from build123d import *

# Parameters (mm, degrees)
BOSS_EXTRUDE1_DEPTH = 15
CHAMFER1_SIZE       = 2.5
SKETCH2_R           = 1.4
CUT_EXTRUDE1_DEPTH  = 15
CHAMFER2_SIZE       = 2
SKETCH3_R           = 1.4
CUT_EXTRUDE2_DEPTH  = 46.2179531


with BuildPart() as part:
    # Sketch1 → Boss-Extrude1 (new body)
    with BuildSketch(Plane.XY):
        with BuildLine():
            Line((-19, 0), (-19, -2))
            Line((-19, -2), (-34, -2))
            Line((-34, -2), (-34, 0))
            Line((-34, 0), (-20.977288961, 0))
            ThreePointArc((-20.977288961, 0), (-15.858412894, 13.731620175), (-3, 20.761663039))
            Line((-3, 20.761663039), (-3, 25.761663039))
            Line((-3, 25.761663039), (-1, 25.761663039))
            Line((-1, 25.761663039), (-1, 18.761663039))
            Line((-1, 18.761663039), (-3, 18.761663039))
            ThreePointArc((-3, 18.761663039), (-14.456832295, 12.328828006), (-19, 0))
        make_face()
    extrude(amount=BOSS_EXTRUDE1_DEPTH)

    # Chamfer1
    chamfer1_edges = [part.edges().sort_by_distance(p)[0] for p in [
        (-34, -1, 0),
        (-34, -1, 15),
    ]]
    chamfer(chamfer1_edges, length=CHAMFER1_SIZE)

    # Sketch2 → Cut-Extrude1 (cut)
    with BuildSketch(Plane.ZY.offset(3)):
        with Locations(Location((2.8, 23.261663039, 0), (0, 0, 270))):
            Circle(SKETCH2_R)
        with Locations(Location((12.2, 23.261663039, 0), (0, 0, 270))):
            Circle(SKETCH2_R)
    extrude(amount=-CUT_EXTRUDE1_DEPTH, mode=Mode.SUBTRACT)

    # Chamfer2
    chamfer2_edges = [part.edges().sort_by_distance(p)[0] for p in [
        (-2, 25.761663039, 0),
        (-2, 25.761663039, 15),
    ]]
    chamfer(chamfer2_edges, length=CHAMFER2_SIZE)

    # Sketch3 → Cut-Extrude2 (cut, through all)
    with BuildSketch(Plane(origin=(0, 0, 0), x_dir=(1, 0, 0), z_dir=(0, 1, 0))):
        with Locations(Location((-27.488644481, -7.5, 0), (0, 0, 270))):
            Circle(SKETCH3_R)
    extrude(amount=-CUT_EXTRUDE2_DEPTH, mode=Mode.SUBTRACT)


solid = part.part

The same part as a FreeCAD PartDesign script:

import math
import FreeCAD as App
import Part
import Sketcher
from FreeCAD import Vector
Q = App.Units.Quantity


def edges_at(feature, points):
    """Names of the edges that pass closest to the given points."""
    edges = feature.Shape.Edges
    near = lambda p: min(range(len(edges)), key=lambda i: edges[i].distToShape(Part.Vertex(*p))[0])
    return sorted({f"Edge{near(p) + 1}" for p in points})

doc = App.newDocument("Part")
params = doc.addObject("Spreadsheet::Sheet", "Params")
for row, (alias, value) in enumerate([
    ("sketch1_radius", "19 mm"),
    ("sketch1_width", "2 mm"),
    ("sketch1_width2", "15 mm"),
    ("sketch1_height", "7 mm"),
    ("sketch1_height2", "5 mm"),
    ("pad1_length", "15 mm"),
    ("chamfer_size", "2.5 mm"),
    ("sketch2_diameter", "2.8 mm"),
    ("pocket1_length", "15 mm"),
    ("chamfer2_size", "2 mm"),
    ("sketch3_diameter", "2.8 mm"),
], start=1):
    params.set(f"A{row}", alias)
    params.set(f"B{row}", "=" + value)
    params.setAlias(f"B{row}", alias)

body = doc.addObject("PartDesign::Body", "Body")

# Sketch on XY plane
sketch1 = body.newObject("Sketcher::SketchObject", "Sketch")
sketch1.AttachmentSupport = (doc.getObject("XY_Plane"), [""])
sketch1.MapMode = "FlatFace"
sketch1.addGeometry(Part.LineSegment(Vector(-19, -2, 0), Vector(-19, 0, 0)), False)
sketch1.addGeometry(Part.ArcOfCircle(Part.Circle(Vector(0, 0, 0), Vector(0, 0, 1), 19), math.radians(99), math.radians(180)), False)
sketch1.addGeometry(Part.LineSegment(Vector(-3, 18.8, 0), Vector(-1, 18.8, 0)), False)
sketch1.addGeometry(Part.LineSegment(Vector(-1, 18.8, 0), Vector(-1, 25.8, 0)), False)
sketch1.addGeometry(Part.LineSegment(Vector(-1, 25.8, 0), Vector(-3, 25.8, 0)), False)
sketch1.addGeometry(Part.LineSegment(Vector(-3, 25.8, 0), Vector(-3, 20.8, 0)), False)
sketch1.addGeometry(Part.ArcOfCircle(Part.Circle(Vector(0, 0, 0), Vector(0, 0, 1), 21), math.radians(98), math.radians(180)), False)
sketch1.addGeometry(Part.LineSegment(Vector(-21, 0, 0), Vector(-34, 0, 0)), False)
sketch1.addGeometry(Part.LineSegment(Vector(-34, 0, 0), Vector(-34, -2, 0)), False)
sketch1.addGeometry(Part.LineSegment(Vector(-34, -2, 0), Vector(-19, -2, 0)), False)
sketch1.addConstraint(Sketcher.Constraint("Tangent", 0, 2, 1, 2))
sketch1.addConstraint(Sketcher.Constraint("Coincident", 1, 1, 2, 1))
sketch1.addConstraint(Sketcher.Constraint("Coincident", 2, 2, 3, 1))
sketch1.addConstraint(Sketcher.Constraint("Coincident", 3, 2, 4, 1))
sketch1.addConstraint(Sketcher.Constraint("Coincident", 4, 2, 5, 1))
sketch1.addConstraint(Sketcher.Constraint("Coincident", 5, 2, 6, 1))
sketch1.addConstraint(Sketcher.Constraint("Coincident", 6, 2, 7, 1))
sketch1.addConstraint(Sketcher.Constraint("Coincident", 7, 2, 8, 1))
sketch1.addConstraint(Sketcher.Constraint("Coincident", 8, 2, 9, 1))
sketch1.addConstraint(Sketcher.Constraint("Coincident", 9, 2, 0, 1))
sketch1.addConstraint(Sketcher.Constraint("Vertical", 0))
sketch1.addConstraint(Sketcher.Constraint("Horizontal", 2))
sketch1.addConstraint(Sketcher.Constraint("Vertical", 3))
sketch1.addConstraint(Sketcher.Constraint("Horizontal", 4))
sketch1.addConstraint(Sketcher.Constraint("Vertical", 5))
sketch1.addConstraint(Sketcher.Constraint("Horizontal", 7))
sketch1.addConstraint(Sketcher.Constraint("Vertical", 8))
sketch1.addConstraint(Sketcher.Constraint("Horizontal", 9))
sketch1.addConstraint(Sketcher.Constraint("Coincident", 1, 3, -1, 1))
sketch1.addConstraint(Sketcher.Constraint("Coincident", 6, 3, -1, 1))
sketch1.addConstraint(Sketcher.Constraint("PointOnObject", 6, 2, -1))
sketch1.addConstraint(Sketcher.Constraint("Vertical", 1, 1, 4, 2))
sketch1.addConstraint(Sketcher.Constraint("Equal", 4, 0))
sketch1.addConstraint(Sketcher.Constraint("Radius", 1, Q("19 mm")))
sketch1.addConstraint(Sketcher.Constraint("DistanceX", 2, 1, 2, 2, Q("2 mm")))
sketch1.addConstraint(Sketcher.Constraint("DistanceX", 9, 1, 9, 2, Q("15 mm")))
sketch1.addConstraint(Sketcher.Constraint("DistanceY", 3, 1, 3, 2, Q("7 mm")))
sketch1.addConstraint(Sketcher.Constraint("DistanceY", 5, 2, 5, 1, Q("5 mm")))
sketch1.addConstraint(Sketcher.Constraint("DistanceX", 1, 1, -1, 1, Q("3 mm")))
sketch1.setExpression("Constraints[23]", "Params.sketch1_radius")
sketch1.setExpression("Constraints[24]", "Params.sketch1_width")
sketch1.setExpression("Constraints[25]", "Params.sketch1_width2")
sketch1.setExpression("Constraints[26]", "Params.sketch1_height")
sketch1.setExpression("Constraints[27]", "Params.sketch1_height2")
pad1 = body.newObject("PartDesign::Pad", "Pad")
pad1.Profile = sketch1
pad1.setExpression("Length", "Params.pad1_length")
doc.recompute()

chamfer = body.newObject("PartDesign::Chamfer", "Chamfer")
chamfer.Base = (pad1, edges_at(pad1, [(-34, -1, 0), (-34, -1, 15)]))
chamfer.setExpression("Size", "Params.chamfer_size")

# Sketch on YZ plane
sketch2 = body.newObject("Sketcher::SketchObject", "Sketch001")
sketch2.AttachmentSupport = (doc.getObject("YZ_Plane"), [""])
sketch2.MapMode = "FlatFace"
sketch2.AttachmentOffset = App.Placement(Vector(0, 0, -3), App.Rotation())
sketch2.addGeometry(Part.Circle(Vector(23.3, 2.8, 0), Vector(0, 0, 1), 1.4), False)
sketch2.addGeometry(Part.Circle(Vector(23.3, 12.2, 0), Vector(0, 0, 1), 1.4), False)
sketch2.addConstraint(Sketcher.Constraint("Equal", 0, 1))
sketch2.addConstraint(Sketcher.Constraint("Vertical", 0, 3, 1, 3))
sketch2.addConstraint(Sketcher.Constraint("Diameter", 0, Q("2.8 mm")))
sketch2.addConstraint(Sketcher.Constraint("DistanceY", -1, 1, 0, 3, Q("2.8 mm")))
sketch2.addConstraint(Sketcher.Constraint("DistanceY", -1, 1, 1, 3, Q("12.2 mm")))
sketch2.addConstraint(Sketcher.Constraint("DistanceX", -1, 1, 0, 3, Q("23.261663 mm")))
sketch2.setExpression("Constraints[2]", "Params.sketch2_diameter")
pocket1 = body.newObject("PartDesign::Pocket", "Pocket")
pocket1.Profile = sketch2
pocket1.setExpression("Length", "Params.pocket1_length")
pocket1.Reversed = True
doc.recompute()

chamfer2 = body.newObject("PartDesign::Chamfer", "Chamfer001")
chamfer2.Base = (pocket1, edges_at(pocket1, [(-2, 25.762, 0), (-2, 25.762, 15)]))
chamfer2.setExpression("Size", "Params.chamfer2_size")

# Sketch on XZ plane
sketch3 = body.newObject("Sketcher::SketchObject", "Sketch002")
sketch3.AttachmentSupport = (doc.getObject("XZ_Plane"), [""])
sketch3.MapMode = "FlatFace"
sketch3.addGeometry(Part.Circle(Vector(-27.5, 7.5, 0), Vector(0, 0, 1), 1.4), False)
sketch3.addConstraint(Sketcher.Constraint("Diameter", 0, Q("2.8 mm")))
sketch3.addConstraint(Sketcher.Constraint("DistanceY", -1, 1, 0, 3, Q("7.5 mm")))
sketch3.addConstraint(Sketcher.Constraint("DistanceX", 0, 3, -1, 1, Q("27.488644 mm")))
sketch3.setExpression("Constraints[0]", "Params.sketch3_diameter")
pocket2 = body.newObject("PartDesign::Pocket", "Pocket001")
pocket2.Profile = sketch3
pocket2.Type = "ThroughAll"
pocket2.Reversed = True

doc.recompute()
